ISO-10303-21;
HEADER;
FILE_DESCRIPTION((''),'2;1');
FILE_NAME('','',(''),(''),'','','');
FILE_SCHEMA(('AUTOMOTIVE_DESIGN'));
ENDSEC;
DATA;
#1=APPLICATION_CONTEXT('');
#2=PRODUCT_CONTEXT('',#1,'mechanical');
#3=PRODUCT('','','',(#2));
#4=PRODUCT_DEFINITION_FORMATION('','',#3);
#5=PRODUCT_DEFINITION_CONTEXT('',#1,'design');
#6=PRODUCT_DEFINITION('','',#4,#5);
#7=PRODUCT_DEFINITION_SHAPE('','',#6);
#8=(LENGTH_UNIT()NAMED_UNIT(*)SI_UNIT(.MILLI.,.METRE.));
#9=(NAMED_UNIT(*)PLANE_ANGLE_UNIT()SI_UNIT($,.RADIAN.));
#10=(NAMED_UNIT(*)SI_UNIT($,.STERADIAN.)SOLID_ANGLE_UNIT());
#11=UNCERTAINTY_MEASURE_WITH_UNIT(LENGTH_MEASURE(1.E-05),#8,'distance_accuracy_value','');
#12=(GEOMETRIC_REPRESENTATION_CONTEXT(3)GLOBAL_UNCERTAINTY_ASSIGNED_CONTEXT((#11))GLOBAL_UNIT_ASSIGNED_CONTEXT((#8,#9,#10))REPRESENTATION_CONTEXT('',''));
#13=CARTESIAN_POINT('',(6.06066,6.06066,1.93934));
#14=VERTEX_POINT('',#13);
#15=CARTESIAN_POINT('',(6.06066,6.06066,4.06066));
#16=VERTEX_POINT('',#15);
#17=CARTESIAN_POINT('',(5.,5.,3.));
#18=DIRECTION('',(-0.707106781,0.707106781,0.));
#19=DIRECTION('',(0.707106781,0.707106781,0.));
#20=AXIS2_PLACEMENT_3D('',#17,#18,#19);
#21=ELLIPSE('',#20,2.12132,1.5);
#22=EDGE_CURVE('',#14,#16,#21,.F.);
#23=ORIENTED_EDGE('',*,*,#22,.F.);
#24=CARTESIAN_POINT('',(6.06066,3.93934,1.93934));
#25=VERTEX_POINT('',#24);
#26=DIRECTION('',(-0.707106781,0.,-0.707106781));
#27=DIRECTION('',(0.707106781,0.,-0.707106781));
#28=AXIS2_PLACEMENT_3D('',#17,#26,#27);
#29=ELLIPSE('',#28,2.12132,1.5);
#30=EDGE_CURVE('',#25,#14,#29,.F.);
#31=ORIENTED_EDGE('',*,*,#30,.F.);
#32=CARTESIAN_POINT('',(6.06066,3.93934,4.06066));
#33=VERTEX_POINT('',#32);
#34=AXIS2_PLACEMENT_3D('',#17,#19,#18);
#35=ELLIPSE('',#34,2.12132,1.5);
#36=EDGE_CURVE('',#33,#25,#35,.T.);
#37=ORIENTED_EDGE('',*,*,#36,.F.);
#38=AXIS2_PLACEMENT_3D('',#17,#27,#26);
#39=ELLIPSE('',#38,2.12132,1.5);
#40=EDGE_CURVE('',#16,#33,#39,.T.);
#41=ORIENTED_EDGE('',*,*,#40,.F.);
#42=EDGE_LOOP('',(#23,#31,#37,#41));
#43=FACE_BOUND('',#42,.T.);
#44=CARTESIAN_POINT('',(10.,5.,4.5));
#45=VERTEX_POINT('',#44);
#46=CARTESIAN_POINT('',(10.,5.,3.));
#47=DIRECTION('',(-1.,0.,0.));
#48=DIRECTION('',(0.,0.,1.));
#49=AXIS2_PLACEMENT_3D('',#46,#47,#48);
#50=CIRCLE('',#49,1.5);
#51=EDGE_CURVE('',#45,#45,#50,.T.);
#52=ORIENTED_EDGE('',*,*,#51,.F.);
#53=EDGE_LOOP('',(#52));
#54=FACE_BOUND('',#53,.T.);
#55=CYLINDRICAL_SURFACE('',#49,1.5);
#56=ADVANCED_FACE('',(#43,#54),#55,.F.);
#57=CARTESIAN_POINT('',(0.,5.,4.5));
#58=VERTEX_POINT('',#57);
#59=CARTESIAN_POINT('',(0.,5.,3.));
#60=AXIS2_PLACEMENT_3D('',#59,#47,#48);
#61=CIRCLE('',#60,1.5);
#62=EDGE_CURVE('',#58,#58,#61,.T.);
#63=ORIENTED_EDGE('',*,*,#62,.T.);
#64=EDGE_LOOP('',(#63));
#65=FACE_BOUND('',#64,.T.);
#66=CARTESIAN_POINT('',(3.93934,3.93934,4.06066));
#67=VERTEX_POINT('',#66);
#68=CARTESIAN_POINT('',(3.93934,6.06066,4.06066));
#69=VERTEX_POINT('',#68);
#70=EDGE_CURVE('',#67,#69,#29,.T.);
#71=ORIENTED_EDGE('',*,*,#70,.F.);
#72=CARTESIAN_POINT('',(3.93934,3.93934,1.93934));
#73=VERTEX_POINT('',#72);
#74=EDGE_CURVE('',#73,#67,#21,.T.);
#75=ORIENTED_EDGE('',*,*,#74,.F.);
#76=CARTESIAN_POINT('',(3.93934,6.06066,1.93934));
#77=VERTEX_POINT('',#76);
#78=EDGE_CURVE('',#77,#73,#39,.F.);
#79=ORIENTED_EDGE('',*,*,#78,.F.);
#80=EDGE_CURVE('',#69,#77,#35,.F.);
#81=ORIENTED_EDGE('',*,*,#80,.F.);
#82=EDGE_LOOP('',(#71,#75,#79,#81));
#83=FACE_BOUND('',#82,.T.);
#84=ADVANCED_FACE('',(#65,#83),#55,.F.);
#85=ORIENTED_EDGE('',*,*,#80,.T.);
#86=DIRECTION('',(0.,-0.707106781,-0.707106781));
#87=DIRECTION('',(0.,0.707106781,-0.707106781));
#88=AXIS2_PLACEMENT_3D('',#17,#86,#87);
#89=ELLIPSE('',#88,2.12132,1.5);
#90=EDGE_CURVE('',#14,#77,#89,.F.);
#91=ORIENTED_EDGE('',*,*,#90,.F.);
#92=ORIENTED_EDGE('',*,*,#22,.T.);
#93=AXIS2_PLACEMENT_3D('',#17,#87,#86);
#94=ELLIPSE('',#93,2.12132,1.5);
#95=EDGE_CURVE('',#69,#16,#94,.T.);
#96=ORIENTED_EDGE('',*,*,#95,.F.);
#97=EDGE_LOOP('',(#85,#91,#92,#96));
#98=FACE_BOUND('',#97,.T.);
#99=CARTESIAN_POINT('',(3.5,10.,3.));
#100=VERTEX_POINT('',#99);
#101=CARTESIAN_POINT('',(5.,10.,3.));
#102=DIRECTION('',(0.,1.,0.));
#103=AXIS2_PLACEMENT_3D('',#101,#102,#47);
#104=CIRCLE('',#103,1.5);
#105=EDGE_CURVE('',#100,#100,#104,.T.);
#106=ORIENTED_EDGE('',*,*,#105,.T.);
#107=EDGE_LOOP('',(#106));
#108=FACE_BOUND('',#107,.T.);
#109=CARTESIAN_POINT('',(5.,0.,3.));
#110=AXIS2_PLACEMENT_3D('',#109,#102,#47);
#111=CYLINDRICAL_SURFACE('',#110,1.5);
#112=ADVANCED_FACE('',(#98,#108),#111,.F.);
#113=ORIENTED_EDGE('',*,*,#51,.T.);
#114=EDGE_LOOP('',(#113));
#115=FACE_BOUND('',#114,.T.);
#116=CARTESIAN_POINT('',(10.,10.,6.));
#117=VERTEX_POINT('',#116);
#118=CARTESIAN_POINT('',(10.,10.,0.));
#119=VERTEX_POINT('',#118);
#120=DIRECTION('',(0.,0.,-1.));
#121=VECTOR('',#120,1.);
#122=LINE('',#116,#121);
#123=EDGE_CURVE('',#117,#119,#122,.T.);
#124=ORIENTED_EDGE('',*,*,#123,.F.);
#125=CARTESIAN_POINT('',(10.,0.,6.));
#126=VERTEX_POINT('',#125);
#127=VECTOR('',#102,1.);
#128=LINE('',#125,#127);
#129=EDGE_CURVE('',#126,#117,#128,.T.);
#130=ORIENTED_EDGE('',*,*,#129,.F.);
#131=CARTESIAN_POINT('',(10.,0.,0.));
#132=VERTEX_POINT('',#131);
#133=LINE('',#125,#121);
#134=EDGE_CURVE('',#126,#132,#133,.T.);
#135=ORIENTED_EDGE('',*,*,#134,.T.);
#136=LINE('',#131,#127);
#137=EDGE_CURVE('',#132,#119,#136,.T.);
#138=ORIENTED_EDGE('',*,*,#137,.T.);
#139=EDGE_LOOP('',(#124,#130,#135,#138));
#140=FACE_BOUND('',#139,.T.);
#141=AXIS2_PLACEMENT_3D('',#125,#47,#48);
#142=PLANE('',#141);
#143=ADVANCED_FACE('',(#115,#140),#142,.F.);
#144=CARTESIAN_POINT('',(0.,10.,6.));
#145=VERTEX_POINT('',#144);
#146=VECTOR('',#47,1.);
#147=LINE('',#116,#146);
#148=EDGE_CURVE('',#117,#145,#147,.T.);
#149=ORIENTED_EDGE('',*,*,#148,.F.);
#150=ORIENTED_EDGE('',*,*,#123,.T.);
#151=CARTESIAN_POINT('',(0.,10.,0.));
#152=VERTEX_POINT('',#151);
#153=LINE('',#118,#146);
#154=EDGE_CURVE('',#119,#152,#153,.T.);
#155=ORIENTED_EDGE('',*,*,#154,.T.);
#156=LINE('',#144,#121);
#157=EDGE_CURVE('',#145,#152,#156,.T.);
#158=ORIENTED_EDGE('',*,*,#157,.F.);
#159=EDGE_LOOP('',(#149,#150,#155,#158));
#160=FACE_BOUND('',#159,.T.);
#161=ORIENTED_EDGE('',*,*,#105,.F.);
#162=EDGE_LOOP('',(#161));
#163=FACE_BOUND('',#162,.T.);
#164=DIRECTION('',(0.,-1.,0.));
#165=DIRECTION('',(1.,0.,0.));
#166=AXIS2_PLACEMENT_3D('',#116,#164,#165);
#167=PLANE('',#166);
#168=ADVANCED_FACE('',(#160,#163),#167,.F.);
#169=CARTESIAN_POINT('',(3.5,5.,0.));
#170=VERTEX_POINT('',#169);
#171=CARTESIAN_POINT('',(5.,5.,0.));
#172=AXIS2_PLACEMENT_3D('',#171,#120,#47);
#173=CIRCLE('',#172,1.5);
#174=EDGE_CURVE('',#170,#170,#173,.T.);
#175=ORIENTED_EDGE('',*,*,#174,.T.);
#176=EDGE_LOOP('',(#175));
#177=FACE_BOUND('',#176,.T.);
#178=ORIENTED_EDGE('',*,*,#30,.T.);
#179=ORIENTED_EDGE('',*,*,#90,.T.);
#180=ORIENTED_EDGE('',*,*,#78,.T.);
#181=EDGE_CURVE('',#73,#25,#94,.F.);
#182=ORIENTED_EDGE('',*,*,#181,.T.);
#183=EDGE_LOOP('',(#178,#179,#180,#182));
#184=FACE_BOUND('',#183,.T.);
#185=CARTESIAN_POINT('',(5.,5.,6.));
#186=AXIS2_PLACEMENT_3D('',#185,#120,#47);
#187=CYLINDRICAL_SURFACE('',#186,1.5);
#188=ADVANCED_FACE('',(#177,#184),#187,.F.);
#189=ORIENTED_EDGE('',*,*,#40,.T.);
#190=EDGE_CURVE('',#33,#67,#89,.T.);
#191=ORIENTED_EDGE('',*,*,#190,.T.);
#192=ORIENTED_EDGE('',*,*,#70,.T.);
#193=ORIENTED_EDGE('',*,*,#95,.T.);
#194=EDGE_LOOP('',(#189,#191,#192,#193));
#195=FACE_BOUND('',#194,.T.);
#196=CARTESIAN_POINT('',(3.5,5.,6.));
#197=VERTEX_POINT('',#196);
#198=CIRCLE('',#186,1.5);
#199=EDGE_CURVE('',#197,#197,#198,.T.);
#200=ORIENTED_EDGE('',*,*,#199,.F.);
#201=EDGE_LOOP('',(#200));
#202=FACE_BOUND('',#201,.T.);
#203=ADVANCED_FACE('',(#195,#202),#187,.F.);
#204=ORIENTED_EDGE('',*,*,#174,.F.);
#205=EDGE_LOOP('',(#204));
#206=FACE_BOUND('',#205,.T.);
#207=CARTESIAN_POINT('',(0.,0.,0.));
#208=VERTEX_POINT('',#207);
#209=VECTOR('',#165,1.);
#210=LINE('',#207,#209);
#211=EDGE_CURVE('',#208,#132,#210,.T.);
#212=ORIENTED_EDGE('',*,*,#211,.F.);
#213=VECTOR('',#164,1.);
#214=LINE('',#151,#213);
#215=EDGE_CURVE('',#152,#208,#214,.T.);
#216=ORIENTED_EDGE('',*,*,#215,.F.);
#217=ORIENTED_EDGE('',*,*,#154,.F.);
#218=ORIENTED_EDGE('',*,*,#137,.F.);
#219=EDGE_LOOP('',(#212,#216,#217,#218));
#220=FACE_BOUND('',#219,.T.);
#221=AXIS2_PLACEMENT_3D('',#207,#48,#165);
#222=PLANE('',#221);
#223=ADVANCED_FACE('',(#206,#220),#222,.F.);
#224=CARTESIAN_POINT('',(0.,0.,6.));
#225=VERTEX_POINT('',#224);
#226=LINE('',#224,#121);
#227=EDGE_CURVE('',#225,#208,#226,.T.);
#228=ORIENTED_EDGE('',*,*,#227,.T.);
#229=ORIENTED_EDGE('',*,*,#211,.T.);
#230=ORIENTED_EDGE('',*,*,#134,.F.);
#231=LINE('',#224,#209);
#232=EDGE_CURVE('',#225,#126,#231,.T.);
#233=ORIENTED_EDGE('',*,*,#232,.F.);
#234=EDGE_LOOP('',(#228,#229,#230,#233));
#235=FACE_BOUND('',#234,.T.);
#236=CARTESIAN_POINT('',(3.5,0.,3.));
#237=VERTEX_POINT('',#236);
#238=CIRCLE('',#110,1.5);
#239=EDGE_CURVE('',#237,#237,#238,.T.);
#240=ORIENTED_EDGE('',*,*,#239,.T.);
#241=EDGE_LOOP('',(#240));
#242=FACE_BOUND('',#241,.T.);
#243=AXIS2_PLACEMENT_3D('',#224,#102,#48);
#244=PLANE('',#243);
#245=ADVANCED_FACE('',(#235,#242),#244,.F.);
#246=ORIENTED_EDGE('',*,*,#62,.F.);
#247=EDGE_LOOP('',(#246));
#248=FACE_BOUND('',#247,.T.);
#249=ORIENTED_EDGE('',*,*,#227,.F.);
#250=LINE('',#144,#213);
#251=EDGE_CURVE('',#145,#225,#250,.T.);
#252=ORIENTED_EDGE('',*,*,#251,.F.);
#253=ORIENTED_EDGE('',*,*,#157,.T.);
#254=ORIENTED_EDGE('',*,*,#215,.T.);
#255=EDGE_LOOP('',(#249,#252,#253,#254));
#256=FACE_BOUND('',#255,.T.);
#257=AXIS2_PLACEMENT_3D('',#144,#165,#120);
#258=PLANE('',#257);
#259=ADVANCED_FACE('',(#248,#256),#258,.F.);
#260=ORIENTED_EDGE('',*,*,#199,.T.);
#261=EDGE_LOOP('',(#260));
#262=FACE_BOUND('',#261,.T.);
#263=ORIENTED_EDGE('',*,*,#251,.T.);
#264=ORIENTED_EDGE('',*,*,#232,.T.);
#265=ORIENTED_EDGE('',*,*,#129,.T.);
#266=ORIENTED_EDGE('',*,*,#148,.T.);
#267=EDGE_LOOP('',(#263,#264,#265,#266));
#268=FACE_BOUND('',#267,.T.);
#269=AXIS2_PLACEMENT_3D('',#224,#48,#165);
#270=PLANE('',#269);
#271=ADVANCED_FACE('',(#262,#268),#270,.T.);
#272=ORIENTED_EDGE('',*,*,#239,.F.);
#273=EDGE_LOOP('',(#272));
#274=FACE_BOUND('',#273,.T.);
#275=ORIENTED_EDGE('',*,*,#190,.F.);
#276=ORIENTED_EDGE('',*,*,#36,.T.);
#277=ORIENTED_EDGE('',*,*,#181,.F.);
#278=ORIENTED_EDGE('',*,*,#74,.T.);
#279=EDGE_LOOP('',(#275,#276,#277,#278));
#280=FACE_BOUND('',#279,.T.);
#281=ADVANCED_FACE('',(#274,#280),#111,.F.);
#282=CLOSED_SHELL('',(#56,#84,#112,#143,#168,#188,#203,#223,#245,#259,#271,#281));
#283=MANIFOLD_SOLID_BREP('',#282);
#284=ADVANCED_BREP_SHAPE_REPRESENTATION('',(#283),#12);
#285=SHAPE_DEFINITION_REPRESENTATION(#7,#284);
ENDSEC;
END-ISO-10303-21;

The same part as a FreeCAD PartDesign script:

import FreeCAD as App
import Part
import Sketcher
Q = App.Units.Quantity


def add_polygon(sketch, points):
    """Adds a closed chain of lines whose ends are joined by coincident constraints."""
    first, n = sketch.GeometryCount, len(points)
    for a, b in zip(points, points[1:] + points[:1]):
        sketch.addGeometry(Part.LineSegment(App.Vector(*a, 0), App.Vector(*b, 0)), False)
    for i in range(n):
        sketch.addConstraint(Sketcher.Constraint("Coincident", first + i, 2, first + (i + 1) % n, 1))

doc = App.newDocument("Part")
body = doc.addObject("PartDesign::Body", "Body")

# Sketch on XY plane
sketch1 = doc.addObject("Sketcher::SketchObject", "Sketch")
body.addObject(sketch1)
sketch1.AttachmentSupport = (doc.XY_Plane, [""])
sketch1.MapMode = "FlatFace"
add_polygon(sketch1, [(0, 10), (0, 0), (10, 0), (10, 10)])  # lines 0-3
sketch1.addConstraint(Sketcher.Constraint("Vertical", 0))
sketch1.addConstraint(Sketcher.Constraint("Horizontal", 1))
sketch1.addConstraint(Sketcher.Constraint("Vertical", 2))
sketch1.addConstraint(Sketcher.Constraint("Horizontal", 3))
sketch1.addConstraint(Sketcher.Constraint("Coincident", 0, 2, -1, 1))
sketch1.addConstraint(Sketcher.Constraint("Equal", 3, 0))
sketch1.addConstraint(Sketcher.Constraint("DistanceX", 1, 1, 1, 2, Q("10 mm")))
pad1 = doc.addObject("PartDesign::Pad", "Pad")
body.addObject(pad1)
pad1.Profile = sketch1
pad1.Length = 6

# Sketch on XY plane
sketch2 = doc.addObject("Sketcher::SketchObject", "Sketch001")
body.addObject(sketch2)
sketch2.AttachmentSupport = (doc.XY_Plane, [""])
sketch2.MapMode = "FlatFace"
sketch2.addGeometry(Part.Circle(App.Vector(5, 5, 0), App.Vector(0, 0, 1), 1.5), False)
sketch2.addConstraint(Sketcher.Constraint("Diameter", 0, Q("3 mm")))
sketch2.addConstraint(Sketcher.Constraint("DistanceX", -1, 1, 0, 3, Q("5 mm")))
sketch2.addConstraint(Sketcher.Constraint("DistanceY", -1, 1, 0, 3, Q("5 mm")))
pocket1 = doc.addObject("PartDesign::Pocket", "Pocket")
body.addObject(pocket1)
pocket1.Profile = sketch2
pocket1.Type = "ThroughAll"
pocket1.Reversed = True

# Sketch on XZ plane
sketch3 = doc.addObject("Sketcher::SketchObject", "Sketch002")
body.addObject(sketch3)
sketch3.AttachmentSupport = (doc.XZ_Plane, [""])
sketch3.MapMode = "FlatFace"
sketch3.AttachmentOffset = App.Placement(App.Vector(0, 0, -10), App.Rotation())
sketch3.addGeometry(Part.Circle(App.Vector(5, 3, 0), App.Vector(0, 0, 1), 1.5), False)
sketch3.addConstraint(Sketcher.Constraint("Diameter", 0, Q("3 mm")))
sketch3.addConstraint(Sketcher.Constraint("DistanceX", -1, 1, 0, 3, Q("5 mm")))
sketch3.addConstraint(Sketcher.Constraint("DistanceY", -1, 1, 0, 3, Q("3 mm")))
pocket2 = doc.addObject("PartDesign::Pocket", "Pocket001")
body.addObject(pocket2)
pocket2.Profile = sketch3
pocket2.Type = "ThroughAll"
pocket2.Reversed = True

# Sketch on YZ plane
sketch4 = doc.addObject("Sketcher::SketchObject", "Sketch003")
body.addObject(sketch4)
sketch4.AttachmentSupport = (doc.YZ_Plane, [""])
sketch4.MapMode = "FlatFace"
sketch4.addGeometry(Part.Circle(App.Vector(5, 3, 0), App.Vector(0, 0, 1), 1.5), False)
sketch4.addConstraint(Sketcher.Constraint("Diameter", 0, Q("3 mm")))
sketch4.addConstraint(Sketcher.Constraint("DistanceX", -1, 1, 0, 3, Q("5 mm")))
sketch4.addConstraint(Sketcher.Constraint("DistanceY", -1, 1, 0, 3, Q("3 mm")))
pocket3 = doc.addObject("PartDesign::Pocket", "Pocket002")
body.addObject(pocket3)
pocket3.Profile = sketch4
pocket3.Type = "ThroughAll"
pocket3.Reversed = True

doc.recompute()
